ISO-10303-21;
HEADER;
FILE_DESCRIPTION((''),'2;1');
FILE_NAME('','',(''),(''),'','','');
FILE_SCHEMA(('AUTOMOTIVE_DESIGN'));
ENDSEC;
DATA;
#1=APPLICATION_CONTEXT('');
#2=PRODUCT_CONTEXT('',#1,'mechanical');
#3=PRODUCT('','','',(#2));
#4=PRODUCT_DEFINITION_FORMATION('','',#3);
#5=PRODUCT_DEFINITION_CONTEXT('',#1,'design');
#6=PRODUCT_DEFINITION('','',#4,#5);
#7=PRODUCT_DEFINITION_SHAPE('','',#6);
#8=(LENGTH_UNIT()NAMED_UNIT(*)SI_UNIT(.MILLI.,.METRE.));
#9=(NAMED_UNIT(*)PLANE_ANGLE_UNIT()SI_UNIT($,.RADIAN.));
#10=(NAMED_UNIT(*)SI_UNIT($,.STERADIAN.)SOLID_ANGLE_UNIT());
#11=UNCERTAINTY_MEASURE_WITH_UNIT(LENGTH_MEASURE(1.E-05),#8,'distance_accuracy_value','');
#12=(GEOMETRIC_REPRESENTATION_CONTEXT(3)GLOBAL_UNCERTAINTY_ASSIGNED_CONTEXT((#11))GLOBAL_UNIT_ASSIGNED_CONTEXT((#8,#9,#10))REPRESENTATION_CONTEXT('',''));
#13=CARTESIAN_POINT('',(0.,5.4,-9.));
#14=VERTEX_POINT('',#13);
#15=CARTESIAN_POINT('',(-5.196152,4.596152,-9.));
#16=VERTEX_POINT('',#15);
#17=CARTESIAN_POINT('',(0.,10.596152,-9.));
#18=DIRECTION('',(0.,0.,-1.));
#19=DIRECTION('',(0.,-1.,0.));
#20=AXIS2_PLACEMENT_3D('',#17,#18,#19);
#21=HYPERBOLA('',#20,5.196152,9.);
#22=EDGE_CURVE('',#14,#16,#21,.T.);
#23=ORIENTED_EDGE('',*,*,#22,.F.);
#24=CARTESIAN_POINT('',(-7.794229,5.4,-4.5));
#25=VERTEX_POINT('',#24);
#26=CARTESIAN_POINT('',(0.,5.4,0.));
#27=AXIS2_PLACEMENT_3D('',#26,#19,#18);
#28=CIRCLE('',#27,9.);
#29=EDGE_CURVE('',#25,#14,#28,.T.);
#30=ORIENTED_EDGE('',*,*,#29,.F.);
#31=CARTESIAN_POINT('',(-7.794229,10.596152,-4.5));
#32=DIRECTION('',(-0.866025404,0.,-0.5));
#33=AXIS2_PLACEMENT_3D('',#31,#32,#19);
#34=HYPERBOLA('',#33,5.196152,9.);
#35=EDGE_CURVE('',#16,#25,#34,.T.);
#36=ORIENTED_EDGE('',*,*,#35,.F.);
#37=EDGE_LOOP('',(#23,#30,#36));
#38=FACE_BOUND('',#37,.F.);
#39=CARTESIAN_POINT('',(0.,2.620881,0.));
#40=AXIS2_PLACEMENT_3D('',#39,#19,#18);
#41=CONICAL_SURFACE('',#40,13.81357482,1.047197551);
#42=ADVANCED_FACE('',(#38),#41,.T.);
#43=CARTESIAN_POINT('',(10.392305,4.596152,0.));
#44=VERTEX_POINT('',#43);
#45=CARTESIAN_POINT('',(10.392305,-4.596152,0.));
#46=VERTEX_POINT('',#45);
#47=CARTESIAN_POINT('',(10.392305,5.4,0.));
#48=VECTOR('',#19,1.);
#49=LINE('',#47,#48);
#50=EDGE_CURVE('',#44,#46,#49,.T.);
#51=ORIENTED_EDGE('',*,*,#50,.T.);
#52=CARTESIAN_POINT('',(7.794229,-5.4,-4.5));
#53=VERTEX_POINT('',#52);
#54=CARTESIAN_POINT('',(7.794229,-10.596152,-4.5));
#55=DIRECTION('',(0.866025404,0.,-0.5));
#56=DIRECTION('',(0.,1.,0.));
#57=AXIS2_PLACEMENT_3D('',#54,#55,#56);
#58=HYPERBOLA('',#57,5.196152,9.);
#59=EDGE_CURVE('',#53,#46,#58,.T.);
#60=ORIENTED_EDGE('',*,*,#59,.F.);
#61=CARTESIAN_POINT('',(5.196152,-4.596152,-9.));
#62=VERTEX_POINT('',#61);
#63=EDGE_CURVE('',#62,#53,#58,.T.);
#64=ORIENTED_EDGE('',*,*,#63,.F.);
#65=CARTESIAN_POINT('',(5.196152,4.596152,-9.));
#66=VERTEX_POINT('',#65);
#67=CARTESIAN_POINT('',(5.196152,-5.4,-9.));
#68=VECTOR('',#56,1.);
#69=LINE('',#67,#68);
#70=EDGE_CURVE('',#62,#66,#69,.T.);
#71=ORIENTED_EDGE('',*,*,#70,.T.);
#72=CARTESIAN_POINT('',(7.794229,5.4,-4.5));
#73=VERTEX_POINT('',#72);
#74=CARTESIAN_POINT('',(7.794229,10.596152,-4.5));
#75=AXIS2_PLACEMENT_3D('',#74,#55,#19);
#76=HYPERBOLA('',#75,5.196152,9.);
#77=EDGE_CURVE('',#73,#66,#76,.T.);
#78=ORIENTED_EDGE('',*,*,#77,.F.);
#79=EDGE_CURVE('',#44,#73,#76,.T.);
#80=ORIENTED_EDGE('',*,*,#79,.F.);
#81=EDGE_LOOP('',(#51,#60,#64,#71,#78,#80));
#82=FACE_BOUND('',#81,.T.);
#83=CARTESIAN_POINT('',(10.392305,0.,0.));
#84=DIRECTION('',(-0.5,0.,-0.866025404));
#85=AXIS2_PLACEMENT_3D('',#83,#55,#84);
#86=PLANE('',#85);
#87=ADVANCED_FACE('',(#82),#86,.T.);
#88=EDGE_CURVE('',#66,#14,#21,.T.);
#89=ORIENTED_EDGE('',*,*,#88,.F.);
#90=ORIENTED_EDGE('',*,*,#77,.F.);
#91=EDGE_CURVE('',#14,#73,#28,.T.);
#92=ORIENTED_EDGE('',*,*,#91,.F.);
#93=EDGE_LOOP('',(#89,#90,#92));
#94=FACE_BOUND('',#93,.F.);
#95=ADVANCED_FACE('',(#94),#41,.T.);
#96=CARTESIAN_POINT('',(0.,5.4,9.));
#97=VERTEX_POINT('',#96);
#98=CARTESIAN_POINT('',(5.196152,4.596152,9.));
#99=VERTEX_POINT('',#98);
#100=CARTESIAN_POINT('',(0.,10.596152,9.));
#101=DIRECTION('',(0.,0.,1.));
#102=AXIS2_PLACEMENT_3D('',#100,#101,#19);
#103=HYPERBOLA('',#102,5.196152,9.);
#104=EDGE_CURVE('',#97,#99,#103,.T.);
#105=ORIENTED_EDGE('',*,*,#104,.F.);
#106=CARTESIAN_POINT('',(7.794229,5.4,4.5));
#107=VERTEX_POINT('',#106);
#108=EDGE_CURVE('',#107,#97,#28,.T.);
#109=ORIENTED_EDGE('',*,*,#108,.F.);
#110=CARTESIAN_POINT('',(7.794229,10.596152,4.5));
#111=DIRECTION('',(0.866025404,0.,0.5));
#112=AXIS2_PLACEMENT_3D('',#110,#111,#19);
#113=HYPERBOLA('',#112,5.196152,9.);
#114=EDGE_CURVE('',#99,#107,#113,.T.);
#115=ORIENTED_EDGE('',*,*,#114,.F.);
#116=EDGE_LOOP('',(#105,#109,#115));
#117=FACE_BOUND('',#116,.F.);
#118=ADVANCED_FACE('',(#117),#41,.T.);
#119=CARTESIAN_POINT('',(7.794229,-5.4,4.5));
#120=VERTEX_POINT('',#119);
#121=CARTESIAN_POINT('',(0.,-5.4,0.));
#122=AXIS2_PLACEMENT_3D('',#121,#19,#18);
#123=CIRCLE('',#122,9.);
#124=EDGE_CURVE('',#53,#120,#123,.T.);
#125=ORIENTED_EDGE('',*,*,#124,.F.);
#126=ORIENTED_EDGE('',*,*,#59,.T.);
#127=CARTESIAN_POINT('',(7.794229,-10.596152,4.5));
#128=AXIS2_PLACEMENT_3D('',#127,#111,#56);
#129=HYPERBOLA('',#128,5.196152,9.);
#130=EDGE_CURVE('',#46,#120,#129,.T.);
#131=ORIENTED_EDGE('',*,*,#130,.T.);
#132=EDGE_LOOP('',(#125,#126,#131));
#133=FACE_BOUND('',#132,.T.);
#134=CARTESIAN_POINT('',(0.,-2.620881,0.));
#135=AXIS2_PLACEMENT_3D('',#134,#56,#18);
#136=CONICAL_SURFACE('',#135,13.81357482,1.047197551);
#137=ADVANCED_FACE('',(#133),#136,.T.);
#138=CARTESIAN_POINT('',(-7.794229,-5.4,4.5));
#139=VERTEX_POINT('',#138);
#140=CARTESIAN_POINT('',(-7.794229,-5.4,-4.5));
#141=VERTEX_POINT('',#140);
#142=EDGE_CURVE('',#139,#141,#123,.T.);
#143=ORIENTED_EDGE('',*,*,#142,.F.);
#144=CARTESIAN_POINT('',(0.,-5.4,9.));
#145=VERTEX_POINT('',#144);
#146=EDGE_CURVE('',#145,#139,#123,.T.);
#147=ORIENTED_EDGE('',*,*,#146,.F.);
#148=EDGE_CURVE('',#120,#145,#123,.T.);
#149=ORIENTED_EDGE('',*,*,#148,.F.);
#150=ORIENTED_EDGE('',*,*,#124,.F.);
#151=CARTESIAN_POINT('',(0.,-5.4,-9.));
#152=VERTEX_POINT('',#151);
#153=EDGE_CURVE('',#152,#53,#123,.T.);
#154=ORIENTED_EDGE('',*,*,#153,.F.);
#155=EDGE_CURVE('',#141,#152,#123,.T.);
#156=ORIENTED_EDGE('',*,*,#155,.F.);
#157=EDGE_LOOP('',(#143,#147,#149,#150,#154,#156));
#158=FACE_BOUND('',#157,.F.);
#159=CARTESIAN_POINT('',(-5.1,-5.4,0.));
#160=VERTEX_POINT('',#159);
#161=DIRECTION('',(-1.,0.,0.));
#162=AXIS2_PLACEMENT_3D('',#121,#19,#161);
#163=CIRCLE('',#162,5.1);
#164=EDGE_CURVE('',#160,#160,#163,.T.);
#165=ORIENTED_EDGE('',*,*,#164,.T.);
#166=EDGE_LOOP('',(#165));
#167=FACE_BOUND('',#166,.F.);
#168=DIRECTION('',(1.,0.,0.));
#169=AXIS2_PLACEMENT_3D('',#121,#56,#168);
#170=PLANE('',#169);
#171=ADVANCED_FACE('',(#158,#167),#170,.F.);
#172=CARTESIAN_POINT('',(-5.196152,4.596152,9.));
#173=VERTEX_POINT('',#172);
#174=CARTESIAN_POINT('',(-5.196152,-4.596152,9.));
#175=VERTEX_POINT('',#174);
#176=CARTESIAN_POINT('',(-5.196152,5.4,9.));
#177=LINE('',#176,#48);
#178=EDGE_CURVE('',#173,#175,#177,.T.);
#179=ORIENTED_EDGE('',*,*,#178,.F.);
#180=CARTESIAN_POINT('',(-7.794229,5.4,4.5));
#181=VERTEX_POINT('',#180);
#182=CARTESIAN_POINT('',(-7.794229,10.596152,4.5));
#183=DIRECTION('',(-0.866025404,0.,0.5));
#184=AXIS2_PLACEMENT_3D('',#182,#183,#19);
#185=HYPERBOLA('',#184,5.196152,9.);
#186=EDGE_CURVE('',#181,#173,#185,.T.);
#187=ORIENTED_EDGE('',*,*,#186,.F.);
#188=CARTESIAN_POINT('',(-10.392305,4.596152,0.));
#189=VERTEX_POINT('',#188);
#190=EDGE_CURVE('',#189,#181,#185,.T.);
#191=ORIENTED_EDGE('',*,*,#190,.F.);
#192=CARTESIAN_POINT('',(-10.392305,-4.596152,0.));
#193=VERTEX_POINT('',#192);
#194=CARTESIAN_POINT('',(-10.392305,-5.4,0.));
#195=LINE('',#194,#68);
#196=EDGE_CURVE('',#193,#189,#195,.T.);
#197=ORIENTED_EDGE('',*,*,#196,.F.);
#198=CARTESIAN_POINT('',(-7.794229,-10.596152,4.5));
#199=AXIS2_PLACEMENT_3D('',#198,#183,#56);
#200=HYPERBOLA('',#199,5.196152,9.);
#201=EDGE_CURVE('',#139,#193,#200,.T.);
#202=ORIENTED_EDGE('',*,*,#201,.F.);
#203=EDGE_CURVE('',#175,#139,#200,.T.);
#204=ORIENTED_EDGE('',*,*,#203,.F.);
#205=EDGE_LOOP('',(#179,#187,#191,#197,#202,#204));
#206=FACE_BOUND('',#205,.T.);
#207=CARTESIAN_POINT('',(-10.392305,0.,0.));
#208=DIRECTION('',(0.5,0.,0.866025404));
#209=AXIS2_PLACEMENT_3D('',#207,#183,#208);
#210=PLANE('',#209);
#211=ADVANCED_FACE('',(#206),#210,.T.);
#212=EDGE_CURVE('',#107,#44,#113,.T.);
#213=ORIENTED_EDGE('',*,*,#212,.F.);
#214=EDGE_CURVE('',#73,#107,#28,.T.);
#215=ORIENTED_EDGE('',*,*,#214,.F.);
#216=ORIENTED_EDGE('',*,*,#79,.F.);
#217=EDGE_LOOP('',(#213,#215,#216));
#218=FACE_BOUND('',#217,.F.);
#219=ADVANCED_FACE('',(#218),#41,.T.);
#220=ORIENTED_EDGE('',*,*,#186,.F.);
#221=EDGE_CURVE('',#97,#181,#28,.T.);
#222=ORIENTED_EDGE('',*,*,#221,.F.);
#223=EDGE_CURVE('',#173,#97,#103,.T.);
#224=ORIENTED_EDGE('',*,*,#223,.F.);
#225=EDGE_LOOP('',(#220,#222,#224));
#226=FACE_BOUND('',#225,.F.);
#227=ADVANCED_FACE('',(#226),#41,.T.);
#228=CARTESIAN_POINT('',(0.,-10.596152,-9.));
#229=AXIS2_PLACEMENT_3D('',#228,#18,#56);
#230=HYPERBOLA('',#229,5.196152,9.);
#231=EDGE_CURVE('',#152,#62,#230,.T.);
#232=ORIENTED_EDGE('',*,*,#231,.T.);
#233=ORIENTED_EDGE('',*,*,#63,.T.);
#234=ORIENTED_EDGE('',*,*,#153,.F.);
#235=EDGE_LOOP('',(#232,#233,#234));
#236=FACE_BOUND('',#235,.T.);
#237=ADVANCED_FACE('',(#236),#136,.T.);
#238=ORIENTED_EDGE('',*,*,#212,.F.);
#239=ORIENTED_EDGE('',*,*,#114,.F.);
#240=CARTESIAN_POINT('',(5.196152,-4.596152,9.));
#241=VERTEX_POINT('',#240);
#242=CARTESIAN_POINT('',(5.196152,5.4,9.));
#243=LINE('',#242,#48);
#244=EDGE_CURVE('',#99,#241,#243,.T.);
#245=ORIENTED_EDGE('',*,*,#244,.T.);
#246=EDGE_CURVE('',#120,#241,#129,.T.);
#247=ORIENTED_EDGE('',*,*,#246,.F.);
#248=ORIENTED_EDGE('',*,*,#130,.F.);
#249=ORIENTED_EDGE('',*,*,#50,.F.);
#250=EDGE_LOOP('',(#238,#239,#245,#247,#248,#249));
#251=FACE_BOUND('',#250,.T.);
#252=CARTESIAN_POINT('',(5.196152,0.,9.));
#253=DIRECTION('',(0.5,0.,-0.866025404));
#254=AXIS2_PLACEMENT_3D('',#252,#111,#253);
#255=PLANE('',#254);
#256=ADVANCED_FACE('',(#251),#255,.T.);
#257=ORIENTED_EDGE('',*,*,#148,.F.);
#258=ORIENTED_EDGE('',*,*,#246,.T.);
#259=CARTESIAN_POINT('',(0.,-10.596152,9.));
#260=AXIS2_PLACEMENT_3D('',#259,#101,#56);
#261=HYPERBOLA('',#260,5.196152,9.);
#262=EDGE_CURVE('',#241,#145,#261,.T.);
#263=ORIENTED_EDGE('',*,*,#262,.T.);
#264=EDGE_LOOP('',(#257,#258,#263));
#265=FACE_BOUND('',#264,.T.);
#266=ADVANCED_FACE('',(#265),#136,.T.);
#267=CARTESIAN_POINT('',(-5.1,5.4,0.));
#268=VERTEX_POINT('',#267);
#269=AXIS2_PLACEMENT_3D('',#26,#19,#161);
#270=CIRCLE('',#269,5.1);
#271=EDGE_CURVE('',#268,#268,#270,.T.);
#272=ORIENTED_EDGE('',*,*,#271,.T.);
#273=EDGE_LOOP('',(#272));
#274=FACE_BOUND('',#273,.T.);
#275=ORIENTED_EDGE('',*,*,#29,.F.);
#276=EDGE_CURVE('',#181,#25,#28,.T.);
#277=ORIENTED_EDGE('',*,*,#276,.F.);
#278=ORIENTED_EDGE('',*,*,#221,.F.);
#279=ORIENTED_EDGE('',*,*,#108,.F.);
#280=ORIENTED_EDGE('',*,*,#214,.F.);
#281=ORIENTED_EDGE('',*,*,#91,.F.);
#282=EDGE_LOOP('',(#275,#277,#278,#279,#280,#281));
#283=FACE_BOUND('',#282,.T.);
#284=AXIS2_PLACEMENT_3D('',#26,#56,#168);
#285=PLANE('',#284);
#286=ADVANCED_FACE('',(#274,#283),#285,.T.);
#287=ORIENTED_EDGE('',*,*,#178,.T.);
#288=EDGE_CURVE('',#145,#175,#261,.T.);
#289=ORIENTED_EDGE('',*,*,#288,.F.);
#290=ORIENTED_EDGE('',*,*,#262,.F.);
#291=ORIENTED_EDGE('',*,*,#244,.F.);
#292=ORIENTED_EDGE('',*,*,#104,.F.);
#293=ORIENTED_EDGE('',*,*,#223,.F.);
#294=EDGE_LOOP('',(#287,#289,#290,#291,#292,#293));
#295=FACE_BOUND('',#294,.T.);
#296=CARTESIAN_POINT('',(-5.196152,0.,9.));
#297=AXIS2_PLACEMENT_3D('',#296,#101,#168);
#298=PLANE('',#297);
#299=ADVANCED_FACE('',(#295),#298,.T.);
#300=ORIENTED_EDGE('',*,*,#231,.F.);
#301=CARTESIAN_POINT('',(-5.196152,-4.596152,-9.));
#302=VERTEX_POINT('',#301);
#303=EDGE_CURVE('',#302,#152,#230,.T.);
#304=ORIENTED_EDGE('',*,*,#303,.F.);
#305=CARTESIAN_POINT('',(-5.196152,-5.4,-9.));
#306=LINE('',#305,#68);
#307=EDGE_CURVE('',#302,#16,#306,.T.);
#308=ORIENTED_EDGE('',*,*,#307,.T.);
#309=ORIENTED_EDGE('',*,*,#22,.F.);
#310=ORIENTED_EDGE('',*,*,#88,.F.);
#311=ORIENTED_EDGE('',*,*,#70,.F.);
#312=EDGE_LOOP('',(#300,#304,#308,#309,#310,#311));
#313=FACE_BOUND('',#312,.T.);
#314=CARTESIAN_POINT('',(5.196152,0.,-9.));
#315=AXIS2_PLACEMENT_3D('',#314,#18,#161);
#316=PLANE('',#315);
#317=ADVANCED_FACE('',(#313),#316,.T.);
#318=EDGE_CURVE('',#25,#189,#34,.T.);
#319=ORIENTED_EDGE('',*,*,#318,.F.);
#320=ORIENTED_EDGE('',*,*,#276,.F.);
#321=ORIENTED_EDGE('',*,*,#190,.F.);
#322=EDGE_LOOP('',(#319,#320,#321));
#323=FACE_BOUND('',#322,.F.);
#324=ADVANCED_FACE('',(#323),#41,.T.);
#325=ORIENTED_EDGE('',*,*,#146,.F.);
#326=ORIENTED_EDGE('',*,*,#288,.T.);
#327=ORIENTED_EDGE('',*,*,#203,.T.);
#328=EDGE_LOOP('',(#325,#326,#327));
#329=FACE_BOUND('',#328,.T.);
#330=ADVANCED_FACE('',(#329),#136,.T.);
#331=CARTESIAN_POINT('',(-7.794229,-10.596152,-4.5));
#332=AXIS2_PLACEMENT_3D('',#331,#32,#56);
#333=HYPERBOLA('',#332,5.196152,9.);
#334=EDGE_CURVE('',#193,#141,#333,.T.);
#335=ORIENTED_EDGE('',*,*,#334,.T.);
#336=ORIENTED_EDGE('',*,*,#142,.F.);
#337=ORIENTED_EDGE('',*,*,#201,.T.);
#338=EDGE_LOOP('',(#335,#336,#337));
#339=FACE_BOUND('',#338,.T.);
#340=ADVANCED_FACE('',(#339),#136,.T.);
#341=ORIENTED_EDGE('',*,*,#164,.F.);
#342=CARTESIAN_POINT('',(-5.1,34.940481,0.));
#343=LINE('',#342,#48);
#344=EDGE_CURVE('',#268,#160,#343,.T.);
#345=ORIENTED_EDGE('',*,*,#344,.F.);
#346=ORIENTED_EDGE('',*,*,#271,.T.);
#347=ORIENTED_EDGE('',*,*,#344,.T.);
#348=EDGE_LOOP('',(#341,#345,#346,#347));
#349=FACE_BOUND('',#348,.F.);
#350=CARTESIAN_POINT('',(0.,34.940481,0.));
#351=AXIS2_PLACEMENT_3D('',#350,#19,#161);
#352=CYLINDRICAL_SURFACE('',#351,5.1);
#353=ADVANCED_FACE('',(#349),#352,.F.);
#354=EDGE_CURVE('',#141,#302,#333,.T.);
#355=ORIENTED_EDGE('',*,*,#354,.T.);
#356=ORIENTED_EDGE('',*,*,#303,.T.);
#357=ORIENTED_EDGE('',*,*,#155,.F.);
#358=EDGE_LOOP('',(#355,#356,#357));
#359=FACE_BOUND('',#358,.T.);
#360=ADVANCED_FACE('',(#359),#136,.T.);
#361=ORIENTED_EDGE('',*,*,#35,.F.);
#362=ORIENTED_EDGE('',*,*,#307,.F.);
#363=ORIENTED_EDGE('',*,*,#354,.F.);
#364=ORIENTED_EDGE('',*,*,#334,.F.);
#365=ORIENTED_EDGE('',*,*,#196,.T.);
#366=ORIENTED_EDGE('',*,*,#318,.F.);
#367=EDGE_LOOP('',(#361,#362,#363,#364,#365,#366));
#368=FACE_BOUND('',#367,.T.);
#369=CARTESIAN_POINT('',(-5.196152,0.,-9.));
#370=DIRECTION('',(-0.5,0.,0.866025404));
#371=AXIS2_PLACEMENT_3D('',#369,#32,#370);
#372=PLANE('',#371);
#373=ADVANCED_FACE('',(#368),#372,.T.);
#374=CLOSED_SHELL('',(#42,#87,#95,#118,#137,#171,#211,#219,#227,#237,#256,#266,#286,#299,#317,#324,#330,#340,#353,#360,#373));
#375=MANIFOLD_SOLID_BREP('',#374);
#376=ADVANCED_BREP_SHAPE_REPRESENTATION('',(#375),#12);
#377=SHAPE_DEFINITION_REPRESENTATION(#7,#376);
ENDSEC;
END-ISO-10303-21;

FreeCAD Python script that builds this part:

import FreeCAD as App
import Part
import Sketcher

V = App.Vector
Q = App.Units.Quantity

doc = App.newDocument("Part")
body = doc.addObject("PartDesign::Body", "Body")

# Sketch on XZ plane
sketch1 = body.newObject("Sketcher::SketchObject", "Sketch")
sketch1.AttachmentSupport = (doc.getObject("XZ_Plane"), [""])
sketch1.MapMode = "FlatFace"
sketch1.addGeometry(Part.LineSegment(V(10, 0, 0), V(5, -9, 0)), False)
sketch1.addGeometry(Part.LineSegment(V(5, -9, 0), V(-5, -9, 0)), False)
sketch1.addGeometry(Part.LineSegment(V(-5, -9, 0), V(-10, 0, 0)), False)
sketch1.addGeometry(Part.LineSegment(V(-10, 0, 0), V(-5, 9, 0)), False)
sketch1.addGeometry(Part.LineSegment(V(-5, 9, 0), V(5, 9, 0)), False)
sketch1.addGeometry(Part.LineSegment(V(5, 9, 0), V(10, 0, 0)), False)
sketch1.addConstraint(Sketcher.Constraint("Coincident", 0, 2, 1, 1))
sketch1.addConstraint(Sketcher.Constraint("Coincident", 1, 2, 2, 1))
sketch1.addConstraint(Sketcher.Constraint("Coincident", 2, 2, 3, 1))
sketch1.addConstraint(Sketcher.Constraint("Coincident", 3, 2, 4, 1))
sketch1.addConstraint(Sketcher.Constraint("Coincident", 4, 2, 5, 1))
sketch1.addConstraint(Sketcher.Constraint("Coincident", 5, 2, 0, 1))
sketch1.addConstraint(Sketcher.Constraint("Horizontal", 1))
sketch1.addConstraint(Sketcher.Constraint("Horizontal", 4))
sketch1.addConstraint(Sketcher.Constraint("Symmetric", 0, 2, 3, 2, -1, 1))
sketch1.addConstraint(Sketcher.Constraint("Symmetric", 2, 2, 5, 2, -1, 1))
sketch1.addConstraint(Sketcher.Constraint("PointOnObject", 2, 2, -1))
sketch1.addConstraint(Sketcher.Constraint("Parallel", 2, 5))
sketch1.addConstraint(Sketcher.Constraint("Vertical", 1, 2, 3, 2))
sketch1.addConstraint(Sketcher.Constraint("Angle", 0, Q("-120 deg")))
sketch1.addConstraint(Sketcher.Constraint("DistanceY", 0, 2, -1, 1, 9.0))
sketch1.addConstraint(Sketcher.Constraint("DistanceX", 1, 2, 1, 1, 10.392305))
pad1 = body.newObject("PartDesign::Pad", "Pad")
pad1.Profile = sketch1
pad1.Length = 10.8
pad1.Midplane = True

# Sketch on YZ plane
sketch2 = body.newObject("Sketcher::SketchObject", "Sketch001")
sketch2.AttachmentSupport = (doc.getObject("YZ_Plane"), [""])
sketch2.MapMode = "FlatFace"
sketch2.addGeometry(Part.LineSegment(V(5.4, -13.8, 0), V(5.4, -9, 0)), False)
sketch2.addGeometry(Part.LineSegment(V(5.4, -9, 0), V(2.6, -13.8, 0)), False)
sketch2.addGeometry(Part.LineSegment(V(2.6, -13.8, 0), V(5.4, -13.8, 0)), False)
sketch2.addConstraint(Sketcher.Constraint("Coincident", 0, 2, 1, 1))
sketch2.addConstraint(Sketcher.Constraint("Coincident", 1, 2, 2, 1))
sketch2.addConstraint(Sketcher.Constraint("Coincident", 2, 2, 0, 1))
sketch2.addConstraint(Sketcher.Constraint("Vertical", 0))
sketch2.addConstraint(Sketcher.Constraint("Horizontal", 2))
sketch2.addConstraint(Sketcher.Constraint("Angle", 1, Q("-120 deg")))
sketch2.addConstraint(Sketcher.Constraint("DistanceY", 0, 2, -1, 1, 9.0))
sketch2.addConstraint(Sketcher.Constraint("DistanceX", -1, 1, 0, 2, 5.4))
sketch2.addConstraint(Sketcher.Constraint("DistanceX", 2, 1, 2, 2, 2.779119))
groove = body.newObject("PartDesign::Groove", "Groove")
groove.Profile = sketch2
groove.ReferenceAxis = (sketch2, ["H_Axis"])
groove.Angle = 360
doc.recompute()

mirrored = body.newObject("PartDesign::Mirrored", "Mirrored")
mirrored.Originals = [groove]
mirrored.MirrorPlane = (doc.getObject("XZ_Plane"), [""])
body.Tip = mirrored

# Sketch on XZ plane
sketch3 = body.newObject("Sketcher::SketchObject", "Sketch002")
sketch3.AttachmentSupport = (doc.getObject("XZ_Plane"), [""])
sketch3.MapMode = "FlatFace"
sketch3.AttachmentOffset = App.Placement(V(0, 0, -5.4), App.Rotation())
sketch3.addGeometry(Part.Circle(V(0, 0, 0), V(0, 0, 1), 5), False)
sketch3.addConstraint(Sketcher.Constraint("Coincident", 0, 3, -1, 1))
sketch3.addConstraint(Sketcher.Constraint("Diameter", 0, 10.2))
doc.recompute()
hole = body.newObject("PartDesign::Hole", "Hole")
hole.Profile = sketch3
hole.ThreadType = "None"
hole.Diameter = 10.2
hole.DepthType = "ThroughAll"
hole.Reversed = True

doc.recompute()
